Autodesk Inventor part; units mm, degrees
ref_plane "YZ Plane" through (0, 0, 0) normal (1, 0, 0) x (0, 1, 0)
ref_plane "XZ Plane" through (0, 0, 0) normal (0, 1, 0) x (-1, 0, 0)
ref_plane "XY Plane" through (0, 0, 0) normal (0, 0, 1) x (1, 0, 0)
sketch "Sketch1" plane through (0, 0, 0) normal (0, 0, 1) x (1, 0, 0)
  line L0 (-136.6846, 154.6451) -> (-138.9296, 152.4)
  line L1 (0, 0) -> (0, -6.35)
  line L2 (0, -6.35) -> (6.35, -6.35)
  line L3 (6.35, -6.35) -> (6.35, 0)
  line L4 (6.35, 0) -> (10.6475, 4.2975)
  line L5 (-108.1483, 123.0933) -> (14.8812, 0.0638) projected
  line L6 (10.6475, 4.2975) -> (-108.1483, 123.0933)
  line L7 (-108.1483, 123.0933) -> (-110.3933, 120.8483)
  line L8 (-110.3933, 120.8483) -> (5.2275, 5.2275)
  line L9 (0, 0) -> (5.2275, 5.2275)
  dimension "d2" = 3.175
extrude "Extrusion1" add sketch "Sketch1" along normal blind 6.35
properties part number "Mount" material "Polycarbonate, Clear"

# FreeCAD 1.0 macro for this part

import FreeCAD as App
import Part
import Sketcher
from FreeCAD import Vector
Q = App.Units.Quantity

doc = App.newDocument("Part")
body = doc.addObject("PartDesign::Body", "Body")

# Sketch on XY plane
sketch1 = doc.addObject("Sketcher::SketchObject", "Sketch")
body.addObject(sketch1)
sketch1.AttachmentSupport = (doc.XY_Plane, [""])
sketch1.MapMode = "FlatFace"
sketch1.addGeometry([
    Part.LineSegment(Vector(5.2275, 5.2275, 0), Vector(0, 0, 0)),  # 0
    Part.LineSegment(Vector(0, 0, 0), Vector(0, -6.35, 0)),  # 1
    Part.LineSegment(Vector(0, -6.35, 0), Vector(6.35, -6.35, 0)),  # 2
    Part.LineSegment(Vector(6.35, -6.35, 0), Vector(6.35, 0, 0)),  # 3
    Part.LineSegment(Vector(6.35, 0, 0), Vector(10.6475, 4.2975, 0)),  # 4
    Part.LineSegment(Vector(10.6475, 4.2975, 0), Vector(-108.1483, 123.0933, 0)),  # 5
    Part.LineSegment(Vector(-108.1483, 123.0933, 0), Vector(-110.3933, 120.8483, 0)),  # 6
    Part.LineSegment(Vector(-110.3933, 120.8483, 0), Vector(5.2275, 5.2275, 0)),  # 7
], False)
sketch1.addConstraint([
    Sketcher.Constraint("Coincident", 0, 2, 1, 1),
    Sketcher.Constraint("Coincident", 1, 2, 2, 1),
    Sketcher.Constraint("Coincident", 2, 2, 3, 1),
    Sketcher.Constraint("Coincident", 3, 2, 4, 1),
    Sketcher.Constraint("Coincident", 4, 2, 5, 1),
    Sketcher.Constraint("Coincident", 5, 2, 6, 1),
    Sketcher.Constraint("Coincident", 6, 2, 7, 1),
    Sketcher.Constraint("Coincident", 7, 2, 0, 1),
    Sketcher.Constraint("Vertical", 1),
    Sketcher.Constraint("Horizontal", 2),
    Sketcher.Constraint("Vertical", 3),
    Sketcher.Constraint("Coincident", 0, 2, -1, 1),
    Sketcher.Constraint("PointOnObject", 3, 2, -1),
    Sketcher.Constraint("Parallel", 0, 4),
    Sketcher.Constraint("Perpendicular", 4, 5),
    Sketcher.Constraint("Perpendicular", 5, 6),
    Sketcher.Constraint("Perpendicular", 6, 7),
    Sketcher.Constraint("Equal", 2, 1),
    Sketcher.Constraint("Distance", 6, Q("0.125 in")),
    Sketcher.Constraint("Angle", 0, Q("-135 deg")),
    Sketcher.Constraint("DistanceX", 2, 1, 2, 2, Q("0.25 in")),
    Sketcher.Constraint("Distance", 7, Q("6.4375 in")),
    Sketcher.Constraint("DistanceX", -1, 1, 4, 2, Q("0.4192 in")),
])
pad1 = doc.addObject("PartDesign::Pad", "Pad")
body.addObject(pad1)
pad1.Profile = sketch1
pad1.Length = Q("0.25 in")

doc.recompute()
